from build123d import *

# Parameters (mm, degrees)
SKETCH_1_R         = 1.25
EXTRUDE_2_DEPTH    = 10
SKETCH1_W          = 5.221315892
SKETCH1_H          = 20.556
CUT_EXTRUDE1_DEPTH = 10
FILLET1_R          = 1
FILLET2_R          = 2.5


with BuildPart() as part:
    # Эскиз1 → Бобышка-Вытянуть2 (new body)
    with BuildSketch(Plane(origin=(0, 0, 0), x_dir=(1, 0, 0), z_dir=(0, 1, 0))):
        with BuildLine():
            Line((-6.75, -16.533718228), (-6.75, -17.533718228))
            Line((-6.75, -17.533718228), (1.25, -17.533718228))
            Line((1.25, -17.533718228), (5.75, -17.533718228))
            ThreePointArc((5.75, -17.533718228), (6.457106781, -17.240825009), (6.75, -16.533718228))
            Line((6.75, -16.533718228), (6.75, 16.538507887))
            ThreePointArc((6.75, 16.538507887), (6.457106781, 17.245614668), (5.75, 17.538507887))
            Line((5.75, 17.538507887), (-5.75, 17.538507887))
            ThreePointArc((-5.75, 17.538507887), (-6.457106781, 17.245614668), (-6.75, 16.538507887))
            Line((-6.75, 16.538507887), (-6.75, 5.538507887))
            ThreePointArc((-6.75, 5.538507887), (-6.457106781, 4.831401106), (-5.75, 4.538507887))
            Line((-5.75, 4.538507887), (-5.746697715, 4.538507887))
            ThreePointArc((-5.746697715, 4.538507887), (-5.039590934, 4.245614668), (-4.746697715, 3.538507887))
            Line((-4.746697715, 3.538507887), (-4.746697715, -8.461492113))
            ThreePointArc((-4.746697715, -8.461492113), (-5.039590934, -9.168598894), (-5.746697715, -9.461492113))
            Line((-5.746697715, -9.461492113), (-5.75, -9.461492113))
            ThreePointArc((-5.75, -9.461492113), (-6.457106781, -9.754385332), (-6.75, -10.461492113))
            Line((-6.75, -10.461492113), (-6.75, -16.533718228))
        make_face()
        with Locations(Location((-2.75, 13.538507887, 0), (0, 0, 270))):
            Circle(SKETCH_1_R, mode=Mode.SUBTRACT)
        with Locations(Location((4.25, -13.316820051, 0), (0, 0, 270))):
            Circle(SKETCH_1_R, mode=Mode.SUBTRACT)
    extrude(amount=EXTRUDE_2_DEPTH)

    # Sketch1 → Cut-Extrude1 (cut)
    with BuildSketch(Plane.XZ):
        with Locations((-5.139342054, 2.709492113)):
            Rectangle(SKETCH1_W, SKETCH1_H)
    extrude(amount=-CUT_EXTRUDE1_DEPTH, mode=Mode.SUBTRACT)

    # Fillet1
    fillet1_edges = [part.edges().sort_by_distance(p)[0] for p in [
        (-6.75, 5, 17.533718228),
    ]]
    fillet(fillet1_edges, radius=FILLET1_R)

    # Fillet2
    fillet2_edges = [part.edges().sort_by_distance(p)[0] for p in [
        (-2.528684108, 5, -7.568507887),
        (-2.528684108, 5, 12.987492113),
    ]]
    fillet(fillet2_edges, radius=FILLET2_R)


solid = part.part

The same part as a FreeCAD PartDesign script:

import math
import FreeCAD as App
import Part
import Sketcher
from FreeCAD import Vector
Q = App.Units.Quantity


def edges_at(feature, points):
    """Names of the edges that pass closest to the given points."""
    edges = feature.Shape.Edges
    near = lambda p: min(range(len(edges)), key=lambda i: edges[i].distToShape(Part.Vertex(*p))[0])
    return sorted({f"Edge{near(p) + 1}" for p in points})

doc = App.newDocument("Part")
body = doc.addObject("PartDesign::Body", "Body")

sketch1 = body.newObject("Sketcher::SketchObject", "Sketch")
sketch1.AttachmentSupport = (doc.getObject("XZ_Plane"), [""])
sketch1.MapMode = "FlatFace"
sketch1.addGeometry([
    Part.LineSegment(Vector(-6.75, 17.5337, 0), Vector(5.75, 17.5337, 0)),
    Part.ArcOfCircle(Part.Circle(Vector(5.75, 16.5337, 0), Vector(0, 0, 1), 1), math.radians(0), math.radians(90)),
    Part.LineSegment(Vector(6.75, 16.5337, 0), Vector(6.75, -16.5385, 0)),
    Part.ArcOfCircle(Part.Circle(Vector(5.75, -16.5385, 0), Vector(0, 0, 1), 1), math.radians(-90), math.radians(0)),
    Part.LineSegment(Vector(5.75, -17.5385, 0), Vector(-5.75, -17.5385, 0)),
    Part.ArcOfCircle(Part.Circle(Vector(-5.75, -16.5385, 0), Vector(0, 0, 1), 1), math.radians(-180), math.radians(-90)),
    Part.LineSegment(Vector(-6.75, -16.5385, 0), Vector(-6.75, -5.5385, 0)),
    Part.ArcOfCircle(Part.Circle(Vector(-5.75, -5.5385, 0), Vector(0, 0, 1), 1), math.radians(90), math.radians(180)),
    Part.LineSegment(Vector(-5.75, -4.5385, 0), Vector(-5.7467, -4.5385, 0)),
    Part.ArcOfCircle(Part.Circle(Vector(-5.7467, -3.5385, 0), Vector(0, 0, 1), 1), math.radians(-90), math.radians(0)),
    Part.LineSegment(Vector(-4.7467, -3.5385, 0), Vector(-4.7467, 8.4615, 0)),
    Part.ArcOfCircle(Part.Circle(Vector(-5.7467, 8.4615, 0), Vector(0, 0, 1), 1), math.radians(0), math.radians(90)),
    Part.LineSegment(Vector(-5.7467, 9.4615, 0), Vector(-5.75, 9.4615, 0)),
    Part.ArcOfCircle(Part.Circle(Vector(-5.75, 10.4615, 0), Vector(0, 0, 1), 1), math.radians(-180), math.radians(-90)),
    Part.LineSegment(Vector(-6.75, 10.4615, 0), Vector(-6.75, 17.5337, 0)),
    Part.Circle(Vector(4.25, 13.3168, 0), Vector(0, 0, 1), 1.25),
    Part.Circle(Vector(-2.75, -13.5385, 0), Vector(0, 0, 1), 1.25),
], False)
sketch1.addConstraint([
    Sketcher.Constraint("Tangent", 0, 2, 1, 2),
    Sketcher.Constraint("Tangent", 1, 1, 2, 1),
    Sketcher.Constraint("Tangent", 2, 2, 3, 2),
    Sketcher.Constraint("Tangent", 3, 1, 4, 1),
    Sketcher.Constraint("Tangent", 4, 2, 5, 2),
    Sketcher.Constraint("Tangent", 5, 1, 6, 1),
    Sketcher.Constraint("Tangent", 6, 2, 7, 2),
    Sketcher.Constraint("Tangent", 7, 1, 8, 1),
    Sketcher.Constraint("Tangent", 8, 2, 9, 1),
    Sketcher.Constraint("Tangent", 9, 2, 10, 1),
    Sketcher.Constraint("Tangent", 10, 2, 11, 1),
    Sketcher.Constraint("Tangent", 11, 2, 12, 1),
    Sketcher.Constraint("Tangent", 12, 2, 13, 2),
    Sketcher.Constraint("Tangent", 13, 1, 14, 1),
    Sketcher.Constraint("Coincident", 14, 2, 0, 1),
    Sketcher.Constraint("Horizontal", 0),
    Sketcher.Constraint("Vertical", 2),
    Sketcher.Constraint("Horizontal", 4),
    Sketcher.Constraint("Vertical", 6),
    Sketcher.Constraint("Vertical", 10),
    Sketcher.Constraint("Vertical", 14),
    Sketcher.Constraint("Equal", 1, 3),
    Sketcher.Constraint("Equal", 3, 5),
    Sketcher.Constraint("Equal", 5, 7),
    Sketcher.Constraint("Equal", 7, 9),
    Sketcher.Constraint("Equal", 9, 11),
    Sketcher.Constraint("Equal", 11, 13),
    Sketcher.Constraint("Equal", 15, 16),
    Sketcher.Constraint("Vertical", 7, 3, 13, 3),
    Sketcher.Constraint("Vertical", 4, 2, 7, 1),
    Sketcher.Constraint("Vertical", 8, 2, 11, 2),
    Sketcher.Constraint("Radius", 1, Q("1 mm")),
    Sketcher.Constraint("Diameter", 15, Q("2.5 mm")),
    Sketcher.Constraint("DistanceY", 6, 1, 6, 2, Q("11 mm")),
    Sketcher.Constraint("DistanceY", 10, 1, 10, 2, Q("12 mm")),
    Sketcher.Constraint("DistanceX", 0, 1, 0, 2, Q("12.5 mm")),
    Sketcher.Constraint("DistanceX", 13, 3, 15, 3, Q("10 mm")),
    Sketcher.Constraint("DistanceX", 5, 3, 16, 3, Q("3 mm")),
    Sketcher.Constraint("DistanceY", 5, 3, 16, 3, Q("3 mm")),
    Sketcher.Constraint("DistanceX", -1, 1, 1, 3, Q("5.75 mm")),
    Sketcher.Constraint("DistanceY", 15, 3, 1, 3, Q("3.216898 mm")),
    Sketcher.Constraint("DistanceX", 8, 1, 8, 2, Q("0.003302 mm")),
    Sketcher.Constraint("DistanceY", 2, 2, 2, 1, Q("33.072226 mm")),
    Sketcher.Constraint("DistanceY", -1, 1, 1, 3, Q("16.533718 mm")),
])
pad1 = body.newObject("PartDesign::Pad", "Pad")
pad1.Profile = sketch1
pad1.Length = 10
pad1.Reversed = True

sketch2 = body.newObject("Sketcher::SketchObject", "Sketch001")
sketch2.AttachmentSupport = (doc.getObject("XZ_Plane"), [""])
sketch2.MapMode = "FlatFace"
sketch2.addGeometry([
    Part.LineSegment(Vector(-8, 13, 0), Vector(-8, -8, 0)),
    Part.LineSegment(Vector(-8, -8, 0), Vector(-3, -8, 0)),
    Part.LineSegment(Vector(-3, -8, 0), Vector(-3, 13, 0)),
    Part.LineSegment(Vector(-3, 13, 0), Vector(-8, 13, 0)),
], False)
sketch2.addConstraint([
    Sketcher.Constraint("Coincident", 0, 2, 1, 1),
    Sketcher.Constraint("Coincident", 1, 2, 2, 1),
    Sketcher.Constraint("Coincident", 2, 2, 3, 1),
    Sketcher.Constraint("Coincident", 3, 2, 0, 1),
    Sketcher.Constraint("Vertical", 0),
    Sketcher.Constraint("Horizontal", 1),
    Sketcher.Constraint("Vertical", 2),
    Sketcher.Constraint("Horizontal", 3),
    Sketcher.Constraint("DistanceY", 0, 2, 0, 1, Q("20.556 mm")),
    Sketcher.Constraint("DistanceX", 0, 2, -1, 1, Q("7.75 mm")),
    Sketcher.Constraint("DistanceX", 1, 1, 1, 2, Q("5.221316 mm")),
    Sketcher.Constraint("DistanceY", 0, 2, -1, 1, Q("7.568508 mm")),
])
pocket1 = body.newObject("PartDesign::Pocket", "Pocket")
pocket1.Profile = sketch2
pocket1.Length = 10
doc.recompute()

fillet = body.newObject("PartDesign::Fillet", "Fillet")
fillet.Base = (pocket1, edges_at(pocket1, [(-6.75, 5, 17.534)]))
fillet.Radius = 1
doc.recompute()

fillet2 = body.newObject("PartDesign::Fillet", "Fillet001")
fillet2.Base = (fillet, edges_at(fillet, [(-2.529, 5, -7.569), (-2.529, 5, 12.987)]))
fillet2.Radius = 2.5

doc.recompute()
